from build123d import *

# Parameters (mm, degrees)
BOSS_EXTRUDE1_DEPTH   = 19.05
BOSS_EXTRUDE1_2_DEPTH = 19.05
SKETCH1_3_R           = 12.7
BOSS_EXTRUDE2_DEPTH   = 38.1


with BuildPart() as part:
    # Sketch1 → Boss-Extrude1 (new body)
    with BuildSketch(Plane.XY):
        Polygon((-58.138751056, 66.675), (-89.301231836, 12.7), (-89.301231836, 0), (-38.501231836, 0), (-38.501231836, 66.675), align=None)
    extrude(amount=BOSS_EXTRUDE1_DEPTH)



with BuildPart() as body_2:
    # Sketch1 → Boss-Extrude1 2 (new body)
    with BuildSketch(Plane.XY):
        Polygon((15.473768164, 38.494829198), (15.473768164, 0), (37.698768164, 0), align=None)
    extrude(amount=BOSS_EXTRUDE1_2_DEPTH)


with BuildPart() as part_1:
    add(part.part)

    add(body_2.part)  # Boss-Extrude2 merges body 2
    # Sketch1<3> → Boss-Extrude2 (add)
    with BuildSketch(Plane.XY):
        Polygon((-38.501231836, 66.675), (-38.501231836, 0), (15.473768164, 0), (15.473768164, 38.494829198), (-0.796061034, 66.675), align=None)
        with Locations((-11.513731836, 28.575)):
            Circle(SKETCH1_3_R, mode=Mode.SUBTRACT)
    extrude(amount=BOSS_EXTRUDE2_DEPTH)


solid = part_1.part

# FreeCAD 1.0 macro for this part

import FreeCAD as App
import Part
import Sketcher
from FreeCAD import Vector
Q = App.Units.Quantity

doc = App.newDocument("Part")
body = doc.addObject("PartDesign::Body", "Body")

sketch1 = body.newObject("Sketcher::SketchObject", "Sketch")
sketch1.AttachmentSupport = (doc.getObject("XY_Plane"), [""])
sketch1.MapMode = "FlatFace"
sketch1.addGeometry(Part.LineSegment(Vector(-58.138751, 66.675, 0), Vector(-89.301232, 12.7, 0)), False)
sketch1.addGeometry(Part.LineSegment(Vector(-89.301232, 12.7, 0), Vector(-89.301232, 0, 0)), False)
sketch1.addGeometry(Part.LineSegment(Vector(-89.301232, 0, 0), Vector(-38.501232, 0, 0)), False)
sketch1.addGeometry(Part.LineSegment(Vector(-38.501232, 0, 0), Vector(-38.501232, 66.675, 0)), False)
sketch1.addGeometry(Part.LineSegment(Vector(-38.501232, 66.675, 0), Vector(-58.138751, 66.675, 0)), False)
sketch1.addConstraint(Sketcher.Constraint("Coincident", 0, 2, 1, 1))
sketch1.addConstraint(Sketcher.Constraint("Coincident", 1, 2, 2, 1))
sketch1.addConstraint(Sketcher.Constraint("Coincident", 2, 2, 3, 1))
sketch1.addConstraint(Sketcher.Constraint("Coincident", 3, 2, 4, 1))
sketch1.addConstraint(Sketcher.Constraint("Coincident", 4, 2, 0, 1))
sketch1.addConstraint(Sketcher.Constraint("Vertical", 1))
sketch1.addConstraint(Sketcher.Constraint("Horizontal", 2))
sketch1.addConstraint(Sketcher.Constraint("Vertical", 3))
sketch1.addConstraint(Sketcher.Constraint("Horizontal", 4))
sketch1.addConstraint(Sketcher.Constraint("PointOnObject", 1, 2, -1))
sketch1.addConstraint(Sketcher.Constraint("DistanceX", 2, 1, 2, 2, Q("2 in")))
sketch1.addConstraint(Sketcher.Constraint("DistanceY", 1, 2, 1, 1, Q("0.5 in")))
sketch1.addConstraint(Sketcher.Constraint("Angle", 0, Q("-120 deg")))
sketch1.addConstraint(Sketcher.Constraint("DistanceY", 3, 1, 3, 2, Q("2.625 in")))
sketch1.addConstraint(Sketcher.Constraint("DistanceX", 0, 2, -1, 1, Q("89.301232 mm")))
pad1 = body.newObject("PartDesign::Pad", "Pad")
pad1.Profile = sketch1
pad1.Length = Q("0.75 in")
body2 = doc.addObject("PartDesign::Body", "Body001")

sketch2 = body2.newObject("Sketcher::SketchObject", "Sketch001")
sketch2.AttachmentSupport = (doc.getObject("XY_Plane001"), [""])
sketch2.MapMode = "FlatFace"
sketch2.addGeometry(Part.LineSegment(Vector(15.473768, 38.494829, 0), Vector(15.473768, 0, 0)), False)
sketch2.addGeometry(Part.LineSegment(Vector(15.473768, 0, 0), Vector(37.698768, 0, 0)), False)
sketch2.addGeometry(Part.LineSegment(Vector(37.698768, 0, 0), Vector(15.473768, 38.494829, 0)), False)
sketch2.addConstraint(Sketcher.Constraint("Coincident", 0, 2, 1, 1))
sketch2.addConstraint(Sketcher.Constraint("Coincident", 1, 2, 2, 1))
sketch2.addConstraint(Sketcher.Constraint("Coincident", 2, 2, 0, 1))
sketch2.addConstraint(Sketcher.Constraint("Vertical", 0))
sketch2.addConstraint(Sketcher.Constraint("Horizontal", 1))
sketch2.addConstraint(Sketcher.Constraint("PointOnObject", 0, 2, -1))
sketch2.addConstraint(Sketcher.Constraint("Angle", 2, Q("120 deg")))
sketch2.addConstraint(Sketcher.Constraint("Distance", 2, Q("1.75 in")))
sketch2.addConstraint(Sketcher.Constraint("DistanceX", -1, 1, 0, 2, Q("15.473768 mm")))
pad2 = body2.newObject("PartDesign::Pad", "Pad001")
pad2.Profile = sketch2
pad2.Length = Q("0.75 in")
body.AllowCompound = True
doc.recompute()

boolean = body.newObject("PartDesign::Boolean", "Boolean")
boolean.Type = "Fuse"
boolean.addObjects([body2])

sketch3 = body.newObject("Sketcher::SketchObject", "Sketch002")
sketch3.AttachmentSupport = (doc.getObject("XY_Plane"), [""])
sketch3.MapMode = "FlatFace"
sketch3.addGeometry(Part.LineSegment(Vector(-38.501232, 66.675, 0), Vector(-38.501232, 0, 0)), False)
sketch3.addGeometry(Part.LineSegment(Vector(-38.501232, 0, 0), Vector(15.473768, 0, 0)), False)
sketch3.addGeometry(Part.LineSegment(Vector(15.473768, 0, 0), Vector(15.473768, 38.494829, 0)), False)
sketch3.addGeometry(Part.LineSegment(Vector(15.473768, 38.494829, 0), Vector(-0.796061, 66.675, 0)), False)
sketch3.addGeometry(Part.LineSegment(Vector(-0.796061, 66.675, 0), Vector(-38.501232, 66.675, 0)), False)
sketch3.addGeometry(Part.Circle(Vector(-11.513732, 28.575, 0), Vector(0, 0, 1), 12.7), False)
sketch3.addConstraint(Sketcher.Constraint("Coincident", 0, 2, 1, 1))
sketch3.addConstraint(Sketcher.Constraint("Coincident", 1, 2, 2, 1))
sketch3.addConstraint(Sketcher.Constraint("Coincident", 2, 2, 3, 1))
sketch3.addConstraint(Sketcher.Constraint("Coincident", 3, 2, 4, 1))
sketch3.addConstraint(Sketcher.Constraint("Coincident", 4, 2, 0, 1))
sketch3.addConstraint(Sketcher.Constraint("Vertical", 0))
sketch3.addConstraint(Sketcher.Constraint("Horizontal", 1))
sketch3.addConstraint(Sketcher.Constraint("Vertical", 2))
sketch3.addConstraint(Sketcher.Constraint("Horizontal", 4))
sketch3.addConstraint(Sketcher.Constraint("PointOnObject", 0, 2, -1))
sketch3.addConstraint(Sketcher.Constraint("Diameter", 5, Q("1 in")))
sketch3.addConstraint(Sketcher.Constraint("Angle", 3, Q("120 deg")))
sketch3.addConstraint(Sketcher.Constraint("DistanceY", 5, 3, 3, 2, Q("1.5 in")))
sketch3.addConstraint(Sketcher.Constraint("DistanceX", 1, 1, 1, 2, Q("2.125 in")))
sketch3.addConstraint(Sketcher.Constraint("DistanceY", 0, 2, 0, 1, Q("2.625 in")))
sketch3.addConstraint(Sketcher.Constraint("DistanceX", 0, 2, 5, 3, Q("1.0625 in")))
sketch3.addConstraint(Sketcher.Constraint("DistanceX", 4, 2, 4, 1, Q("37.705171 mm")))
sketch3.addConstraint(Sketcher.Constraint("DistanceX", 5, 3, -1, 1, Q("11.513732 mm")))
pad3 = body.newObject("PartDesign::Pad", "Pad002")
pad3.Profile = sketch3
pad3.Length = Q("1.5 in")

doc.recompute()
